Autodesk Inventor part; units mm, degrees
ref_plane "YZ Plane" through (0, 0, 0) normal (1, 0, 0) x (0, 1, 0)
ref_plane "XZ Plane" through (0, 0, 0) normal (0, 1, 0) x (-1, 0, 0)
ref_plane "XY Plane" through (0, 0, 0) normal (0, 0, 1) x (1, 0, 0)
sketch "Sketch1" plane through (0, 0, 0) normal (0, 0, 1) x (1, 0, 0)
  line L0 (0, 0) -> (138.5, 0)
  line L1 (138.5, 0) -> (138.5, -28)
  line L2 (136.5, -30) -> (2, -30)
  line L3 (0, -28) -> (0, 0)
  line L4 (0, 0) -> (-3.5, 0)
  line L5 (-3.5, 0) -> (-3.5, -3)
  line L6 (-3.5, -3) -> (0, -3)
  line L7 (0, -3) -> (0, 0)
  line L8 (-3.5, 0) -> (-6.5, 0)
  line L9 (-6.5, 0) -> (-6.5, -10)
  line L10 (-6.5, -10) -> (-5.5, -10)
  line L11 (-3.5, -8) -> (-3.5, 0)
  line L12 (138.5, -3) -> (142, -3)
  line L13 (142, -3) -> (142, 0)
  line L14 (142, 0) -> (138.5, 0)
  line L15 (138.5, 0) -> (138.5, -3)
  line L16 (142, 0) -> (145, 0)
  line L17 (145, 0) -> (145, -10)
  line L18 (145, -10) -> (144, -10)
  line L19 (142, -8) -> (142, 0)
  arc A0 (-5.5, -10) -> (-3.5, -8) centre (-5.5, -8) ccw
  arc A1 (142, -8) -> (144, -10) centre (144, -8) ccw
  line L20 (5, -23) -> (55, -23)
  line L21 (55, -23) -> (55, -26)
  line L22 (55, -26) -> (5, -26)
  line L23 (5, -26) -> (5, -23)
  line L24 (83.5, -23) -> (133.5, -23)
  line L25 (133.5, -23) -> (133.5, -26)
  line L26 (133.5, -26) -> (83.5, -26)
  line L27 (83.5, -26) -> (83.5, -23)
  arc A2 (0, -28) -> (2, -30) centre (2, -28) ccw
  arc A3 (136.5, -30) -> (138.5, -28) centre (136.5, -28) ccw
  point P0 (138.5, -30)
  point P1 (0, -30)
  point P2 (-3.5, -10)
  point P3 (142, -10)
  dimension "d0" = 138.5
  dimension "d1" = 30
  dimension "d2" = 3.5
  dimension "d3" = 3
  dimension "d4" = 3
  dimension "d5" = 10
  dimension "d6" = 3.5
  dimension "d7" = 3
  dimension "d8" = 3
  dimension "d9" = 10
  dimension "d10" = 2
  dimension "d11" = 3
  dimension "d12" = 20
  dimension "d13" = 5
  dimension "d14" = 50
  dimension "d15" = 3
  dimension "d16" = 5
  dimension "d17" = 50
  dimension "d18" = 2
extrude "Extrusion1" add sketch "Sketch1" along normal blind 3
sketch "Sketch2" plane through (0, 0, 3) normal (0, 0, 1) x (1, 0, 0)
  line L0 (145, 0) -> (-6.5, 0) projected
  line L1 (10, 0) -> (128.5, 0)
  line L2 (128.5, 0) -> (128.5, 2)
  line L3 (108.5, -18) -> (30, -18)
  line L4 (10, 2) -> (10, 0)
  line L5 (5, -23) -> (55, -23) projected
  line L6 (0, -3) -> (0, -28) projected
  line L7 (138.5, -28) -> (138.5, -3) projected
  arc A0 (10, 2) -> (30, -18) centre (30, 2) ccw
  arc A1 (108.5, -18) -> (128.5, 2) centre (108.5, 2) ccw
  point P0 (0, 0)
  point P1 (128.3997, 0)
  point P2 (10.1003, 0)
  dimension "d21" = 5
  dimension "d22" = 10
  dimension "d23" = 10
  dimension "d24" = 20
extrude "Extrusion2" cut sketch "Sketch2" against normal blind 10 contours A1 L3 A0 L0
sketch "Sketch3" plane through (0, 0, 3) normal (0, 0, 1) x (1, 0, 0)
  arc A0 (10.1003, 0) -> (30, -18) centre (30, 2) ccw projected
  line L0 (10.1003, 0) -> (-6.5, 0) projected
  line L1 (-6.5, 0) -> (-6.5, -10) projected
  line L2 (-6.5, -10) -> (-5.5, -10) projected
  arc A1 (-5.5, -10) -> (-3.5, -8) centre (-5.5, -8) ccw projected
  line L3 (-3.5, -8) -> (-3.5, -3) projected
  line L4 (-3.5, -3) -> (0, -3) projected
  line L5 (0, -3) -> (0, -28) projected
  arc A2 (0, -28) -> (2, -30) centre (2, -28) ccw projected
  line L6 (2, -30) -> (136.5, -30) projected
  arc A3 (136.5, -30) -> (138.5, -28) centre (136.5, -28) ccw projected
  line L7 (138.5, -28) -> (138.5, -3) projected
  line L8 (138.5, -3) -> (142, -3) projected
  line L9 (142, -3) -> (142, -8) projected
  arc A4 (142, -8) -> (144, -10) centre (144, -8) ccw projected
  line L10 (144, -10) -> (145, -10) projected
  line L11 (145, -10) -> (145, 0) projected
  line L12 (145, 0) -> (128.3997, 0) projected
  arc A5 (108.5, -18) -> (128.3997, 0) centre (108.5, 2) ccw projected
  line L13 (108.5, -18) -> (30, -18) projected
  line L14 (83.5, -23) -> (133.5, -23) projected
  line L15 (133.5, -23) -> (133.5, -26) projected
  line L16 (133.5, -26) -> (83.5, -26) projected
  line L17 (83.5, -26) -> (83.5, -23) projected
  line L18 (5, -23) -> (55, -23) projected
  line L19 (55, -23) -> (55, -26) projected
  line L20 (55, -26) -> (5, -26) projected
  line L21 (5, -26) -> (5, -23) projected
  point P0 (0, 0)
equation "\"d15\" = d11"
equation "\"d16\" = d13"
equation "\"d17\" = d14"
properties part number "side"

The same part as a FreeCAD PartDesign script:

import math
import FreeCAD as App
import Part
import Sketcher
from FreeCAD import Vector

doc = App.newDocument("Part")
body = doc.addObject("PartDesign::Body", "Body")

# Sketch on XY plane
sketch1 = doc.addObject("Sketcher::SketchObject", "Sketch")
body.addObject(sketch1)
sketch1.AttachmentSupport = (doc.XY_Plane, [""])
sketch1.MapMode = "FlatFace"
sketch1.addGeometry(Part.LineSegment(Vector(-6.5, 0, 0), Vector(-6.5, -10, 0)), False)
sketch1.addGeometry(Part.LineSegment(Vector(-6.5, -10, 0), Vector(-5.5, -10, 0)), False)
sketch1.addGeometry(Part.ArcOfCircle(Part.Circle(Vector(-5.5, -8, 0), Vector(0, 0, 1), 2), math.radians(-90), math.radians(0)), False)
sketch1.addGeometry(Part.LineSegment(Vector(-3.5, -8, 0), Vector(-3.5, -3, 0)), False)
sketch1.addGeometry(Part.LineSegment(Vector(-3.5, -3, 0), Vector(0, -3, 0)), False)
sketch1.addGeometry(Part.LineSegment(Vector(0, -3, 0), Vector(0, -28, 0)), False)
sketch1.addGeometry(Part.ArcOfCircle(Part.Circle(Vector(2, -28, 0), Vector(0, 0, 1), 2), math.radians(180), math.radians(270)), False)
sketch1.addGeometry(Part.LineSegment(Vector(2, -30, 0), Vector(136.5, -30, 0)), False)
sketch1.addGeometry(Part.ArcOfCircle(Part.Circle(Vector(136.5, -28, 0), Vector(0, 0, 1), 2), math.radians(-90), math.radians(0)), False)
sketch1.addGeometry(Part.LineSegment(Vector(138.5, -28, 0), Vector(138.5, -3, 0)), False)
sketch1.addGeometry(Part.LineSegment(Vector(138.5, -3, 0), Vector(142, -3, 0)), False)
sketch1.addGeometry(Part.LineSegment(Vector(142, -3, 0), Vector(142, -8, 0)), False)
sketch1.addGeometry(Part.ArcOfCircle(Part.Circle(Vector(144, -8, 0), Vector(0, 0, 1), 2), math.radians(180), math.radians(270)), False)
sketch1.addGeometry(Part.LineSegment(Vector(144, -10, 0), Vector(145, -10, 0)), False)
sketch1.addGeometry(Part.LineSegment(Vector(145, -10, 0), Vector(145, 0, 0)), False)
sketch1.addGeometry(Part.LineSegment(Vector(145, 0, 0), Vector(-6.5, 0, 0)), False)
sketch1.addGeometry(Part.LineSegment(Vector(5, -26, 0), Vector(5, -23, 0)), False)
sketch1.addGeometry(Part.LineSegment(Vector(5, -23, 0), Vector(55, -23, 0)), False)
sketch1.addGeometry(Part.LineSegment(Vector(55, -23, 0), Vector(55, -26, 0)), False)
sketch1.addGeometry(Part.LineSegment(Vector(55, -26, 0), Vector(5, -26, 0)), False)
sketch1.addGeometry(Part.LineSegment(Vector(83.5, -26, 0), Vector(83.5, -23, 0)), False)
sketch1.addGeometry(Part.LineSegment(Vector(83.5, -23, 0), Vector(133.5, -23, 0)), False)
sketch1.addGeometry(Part.LineSegment(Vector(133.5, -23, 0), Vector(133.5, -26, 0)), False)
sketch1.addGeometry(Part.LineSegment(Vector(133.5, -26, 0), Vector(83.5, -26, 0)), False)
sketch1.addConstraint(Sketcher.Constraint("Coincident", 0, 2, 1, 1))
sketch1.addConstraint(Sketcher.Constraint("Tangent", 1, 2, 2, 1))
sketch1.addConstraint(Sketcher.Constraint("Tangent", 2, 2, 3, 1))
sketch1.addConstraint(Sketcher.Constraint("Coincident", 3, 2, 4, 1))
sketch1.addConstraint(Sketcher.Constraint("Coincident", 4, 2, 5, 1))
sketch1.addConstraint(Sketcher.Constraint("Tangent", 5, 2, 6, 1))
sketch1.addConstraint(Sketcher.Constraint("Tangent", 6, 2, 7, 1))
sketch1.addConstraint(Sketcher.Constraint("Tangent", 7, 2, 8, 1))
sketch1.addConstraint(Sketcher.Constraint("Tangent", 8, 2, 9, 1))
sketch1.addConstraint(Sketcher.Constraint("Coincident", 9, 2, 10, 1))
sketch1.addConstraint(Sketcher.Constraint("Coincident", 10, 2, 11, 1))
sketch1.addConstraint(Sketcher.Constraint("Tangent", 11, 2, 12, 1))
sketch1.addConstraint(Sketcher.Constraint("Tangent", 12, 2, 13, 1))
sketch1.addConstraint(Sketcher.Constraint("Coincident", 13, 2, 14, 1))
sketch1.addConstraint(Sketcher.Constraint("Coincident", 14, 2, 15, 1))
sketch1.addConstraint(Sketcher.Constraint("Coincident", 15, 2, 0, 1))
sketch1.addConstraint(Sketcher.Constraint("Coincident", 16, 2, 17, 1))
sketch1.addConstraint(Sketcher.Constraint("Coincident", 17, 2, 18, 1))
sketch1.addConstraint(Sketcher.Constraint("Coincident", 18, 2, 19, 1))
sketch1.addConstraint(Sketcher.Constraint("Coincident", 19, 2, 16, 1))
sketch1.addConstraint(Sketcher.Constraint("Coincident", 20, 2, 21, 1))
sketch1.addConstraint(Sketcher.Constraint("Coincident", 21, 2, 22, 1))
sketch1.addConstraint(Sketcher.Constraint("Coincident", 22, 2, 23, 1))
sketch1.addConstraint(Sketcher.Constraint("Coincident", 23, 2, 20, 1))
sketch1.addConstraint(Sketcher.Constraint("Vertical", 0))
sketch1.addConstraint(Sketcher.Constraint("Horizontal", 1))
sketch1.addConstraint(Sketcher.Constraint("Vertical", 3))
sketch1.addConstraint(Sketcher.Constraint("Horizontal", 4))
sketch1.addConstraint(Sketcher.Constraint("Vertical", 5))
sketch1.addConstraint(Sketcher.Constraint("Horizontal", 7))
sketch1.addConstraint(Sketcher.Constraint("Vertical", 9))
sketch1.addConstraint(Sketcher.Constraint("Horizontal", 10))
sketch1.addConstraint(Sketcher.Constraint("Vertical", 11))
sketch1.addConstraint(Sketcher.Constraint("Horizontal", 13))
sketch1.addConstraint(Sketcher.Constraint("Vertical", 14))
sketch1.addConstraint(Sketcher.Constraint("Horizontal", 15))
sketch1.addConstraint(Sketcher.Constraint("Vertical", 16))
sketch1.addConstraint(Sketcher.Constraint("Horizontal", 17))
sketch1.addConstraint(Sketcher.Constraint("Vertical", 18))
sketch1.addConstraint(Sketcher.Constraint("Horizontal", 19))
sketch1.addConstraint(Sketcher.Constraint("Vertical", 20))
sketch1.addConstraint(Sketcher.Constraint("Horizontal", 21))
sketch1.addConstraint(Sketcher.Constraint("Vertical", 22))
sketch1.addConstraint(Sketcher.Constraint("Horizontal", 23))
sketch1.addConstraint(Sketcher.Constraint("Equal", 2, 6))
sketch1.addConstraint(Sketcher.Constraint("Equal", 6, 8))
sketch1.addConstraint(Sketcher.Constraint("Equal", 8, 12))
sketch1.addConstraint(Sketcher.Constraint("PointOnObject", 4, 2, -2))
sketch1.addConstraint(Sketcher.Constraint("PointOnObject", 14, 2, -1))
sketch1.addConstraint(Sketcher.Constraint("Horizontal", 2, 3, 12, 3))
sketch1.addConstraint(Sketcher.Constraint("Horizontal", 4, 2, 9, 2))
sketch1.addConstraint(Sketcher.Constraint("Horizontal", 17, 2, 20, 2))
sketch1.addConstraint(Sketcher.Constraint("Horizontal", 19, 2, 22, 2))
sketch1.addConstraint(Sketcher.Constraint("Equal", 4, 10))
sketch1.addConstraint(Sketcher.Constraint("Equal", 1, 13))
sketch1.addConstraint(Sketcher.Constraint("Equal", 19, 21))
sketch1.addConstraint(Sketcher.Constraint("Radius", 2, 2.0))
sketch1.addConstraint(Sketcher.Constraint("DistanceX", 17, 1, 17, 2, 50.0))
sketch1.addConstraint(Sketcher.Constraint("DistanceY", 0, 2, 0, 1, 10.0))
sketch1.addConstraint(Sketcher.Constraint("DistanceY", 3, 1, 3, 2, 5.0))
sketch1.addConstraint(Sketcher.Constraint("DistanceY", 16, 1, 16, 2, 3.0))
sketch1.addConstraint(Sketcher.Constraint("DistanceX", 4, 1, 4, 2, 3.5))
sketch1.addConstraint(Sketcher.Constraint("DistanceY", 6, 2, -1, 1, 30.0))
sketch1.addConstraint(Sketcher.Constraint("DistanceX", -1, 1, 16, 2, 5.0))
sketch1.addConstraint(Sketcher.Constraint("DistanceX", 0, 2, 2, 2, 3.0))
sketch1.addConstraint(Sketcher.Constraint("DistanceY", 6, 3, 16, 2, 5.0))
sketch1.addConstraint(Sketcher.Constraint("DistanceX", 21, 2, 8, 3, 3.0))
sketch1.addConstraint(Sketcher.Constraint("DistanceX", -1, 1, 8, 2, 138.5))
pad1 = doc.addObject("PartDesign::Pad", "Pad")
body.addObject(pad1)
pad1.Profile = sketch1
pad1.Length = 3

# Sketch on XY plane
sketch2 = doc.addObject("Sketcher::SketchObject", "Sketch001")
body.addObject(sketch2)
sketch2.AttachmentSupport = (doc.XY_Plane, [""])
sketch2.MapMode = "FlatFace"
sketch2.AttachmentOffset = App.Placement(Vector(0, 0, 3), App.Rotation())
sketch2.addGeometry(Part.ArcOfCircle(Part.Circle(Vector(108.5, 2, 0), Vector(0, 0, 1), 20), math.radians(-90), math.radians(-5.73917)), False)
sketch2.addGeometry(Part.LineSegment(Vector(128.399749, 0, 0), Vector(10.100251, 0, 0)), False)
sketch2.addGeometry(Part.ArcOfCircle(Part.Circle(Vector(30, 2, 0), Vector(0, 0, 1), 20), math.radians(-174.26083), math.radians(-90)), False)
sketch2.addGeometry(Part.LineSegment(Vector(30, -18, 0), Vector(108.5, -18, 0)), False)
sketch2.addConstraint(Sketcher.Constraint("Coincident", 0, 2, 1, 1))
sketch2.addConstraint(Sketcher.Constraint("Coincident", 1, 2, 2, 1))
sketch2.addConstraint(Sketcher.Constraint("Tangent", 2, 2, 3, 1))
sketch2.addConstraint(Sketcher.Constraint("Tangent", 3, 2, 0, 1))
sketch2.addConstraint(Sketcher.Constraint("Horizontal", 1))
sketch2.addConstraint(Sketcher.Constraint("Horizontal", 3))
sketch2.addConstraint(Sketcher.Constraint("Equal", 0, 2))
sketch2.addConstraint(Sketcher.Constraint("PointOnObject", 0, 2, -1))
sketch2.addConstraint(Sketcher.Constraint("Radius", 0, 20.0))
sketch2.addConstraint(Sketcher.Constraint("DistanceX", 3, 1, 3, 2, 78.5))
sketch2.addConstraint(Sketcher.Constraint("DistanceY", -1, 1, 0, 3, 2.0))
sketch2.addConstraint(Sketcher.Constraint("DistanceX", -1, 1, 2, 3, 30.0))
pocket1 = doc.addObject("PartDesign::Pocket", "Pocket")
body.addObject(pocket1)
pocket1.Profile = sketch2
pocket1.Length = 10

doc.recompute()
